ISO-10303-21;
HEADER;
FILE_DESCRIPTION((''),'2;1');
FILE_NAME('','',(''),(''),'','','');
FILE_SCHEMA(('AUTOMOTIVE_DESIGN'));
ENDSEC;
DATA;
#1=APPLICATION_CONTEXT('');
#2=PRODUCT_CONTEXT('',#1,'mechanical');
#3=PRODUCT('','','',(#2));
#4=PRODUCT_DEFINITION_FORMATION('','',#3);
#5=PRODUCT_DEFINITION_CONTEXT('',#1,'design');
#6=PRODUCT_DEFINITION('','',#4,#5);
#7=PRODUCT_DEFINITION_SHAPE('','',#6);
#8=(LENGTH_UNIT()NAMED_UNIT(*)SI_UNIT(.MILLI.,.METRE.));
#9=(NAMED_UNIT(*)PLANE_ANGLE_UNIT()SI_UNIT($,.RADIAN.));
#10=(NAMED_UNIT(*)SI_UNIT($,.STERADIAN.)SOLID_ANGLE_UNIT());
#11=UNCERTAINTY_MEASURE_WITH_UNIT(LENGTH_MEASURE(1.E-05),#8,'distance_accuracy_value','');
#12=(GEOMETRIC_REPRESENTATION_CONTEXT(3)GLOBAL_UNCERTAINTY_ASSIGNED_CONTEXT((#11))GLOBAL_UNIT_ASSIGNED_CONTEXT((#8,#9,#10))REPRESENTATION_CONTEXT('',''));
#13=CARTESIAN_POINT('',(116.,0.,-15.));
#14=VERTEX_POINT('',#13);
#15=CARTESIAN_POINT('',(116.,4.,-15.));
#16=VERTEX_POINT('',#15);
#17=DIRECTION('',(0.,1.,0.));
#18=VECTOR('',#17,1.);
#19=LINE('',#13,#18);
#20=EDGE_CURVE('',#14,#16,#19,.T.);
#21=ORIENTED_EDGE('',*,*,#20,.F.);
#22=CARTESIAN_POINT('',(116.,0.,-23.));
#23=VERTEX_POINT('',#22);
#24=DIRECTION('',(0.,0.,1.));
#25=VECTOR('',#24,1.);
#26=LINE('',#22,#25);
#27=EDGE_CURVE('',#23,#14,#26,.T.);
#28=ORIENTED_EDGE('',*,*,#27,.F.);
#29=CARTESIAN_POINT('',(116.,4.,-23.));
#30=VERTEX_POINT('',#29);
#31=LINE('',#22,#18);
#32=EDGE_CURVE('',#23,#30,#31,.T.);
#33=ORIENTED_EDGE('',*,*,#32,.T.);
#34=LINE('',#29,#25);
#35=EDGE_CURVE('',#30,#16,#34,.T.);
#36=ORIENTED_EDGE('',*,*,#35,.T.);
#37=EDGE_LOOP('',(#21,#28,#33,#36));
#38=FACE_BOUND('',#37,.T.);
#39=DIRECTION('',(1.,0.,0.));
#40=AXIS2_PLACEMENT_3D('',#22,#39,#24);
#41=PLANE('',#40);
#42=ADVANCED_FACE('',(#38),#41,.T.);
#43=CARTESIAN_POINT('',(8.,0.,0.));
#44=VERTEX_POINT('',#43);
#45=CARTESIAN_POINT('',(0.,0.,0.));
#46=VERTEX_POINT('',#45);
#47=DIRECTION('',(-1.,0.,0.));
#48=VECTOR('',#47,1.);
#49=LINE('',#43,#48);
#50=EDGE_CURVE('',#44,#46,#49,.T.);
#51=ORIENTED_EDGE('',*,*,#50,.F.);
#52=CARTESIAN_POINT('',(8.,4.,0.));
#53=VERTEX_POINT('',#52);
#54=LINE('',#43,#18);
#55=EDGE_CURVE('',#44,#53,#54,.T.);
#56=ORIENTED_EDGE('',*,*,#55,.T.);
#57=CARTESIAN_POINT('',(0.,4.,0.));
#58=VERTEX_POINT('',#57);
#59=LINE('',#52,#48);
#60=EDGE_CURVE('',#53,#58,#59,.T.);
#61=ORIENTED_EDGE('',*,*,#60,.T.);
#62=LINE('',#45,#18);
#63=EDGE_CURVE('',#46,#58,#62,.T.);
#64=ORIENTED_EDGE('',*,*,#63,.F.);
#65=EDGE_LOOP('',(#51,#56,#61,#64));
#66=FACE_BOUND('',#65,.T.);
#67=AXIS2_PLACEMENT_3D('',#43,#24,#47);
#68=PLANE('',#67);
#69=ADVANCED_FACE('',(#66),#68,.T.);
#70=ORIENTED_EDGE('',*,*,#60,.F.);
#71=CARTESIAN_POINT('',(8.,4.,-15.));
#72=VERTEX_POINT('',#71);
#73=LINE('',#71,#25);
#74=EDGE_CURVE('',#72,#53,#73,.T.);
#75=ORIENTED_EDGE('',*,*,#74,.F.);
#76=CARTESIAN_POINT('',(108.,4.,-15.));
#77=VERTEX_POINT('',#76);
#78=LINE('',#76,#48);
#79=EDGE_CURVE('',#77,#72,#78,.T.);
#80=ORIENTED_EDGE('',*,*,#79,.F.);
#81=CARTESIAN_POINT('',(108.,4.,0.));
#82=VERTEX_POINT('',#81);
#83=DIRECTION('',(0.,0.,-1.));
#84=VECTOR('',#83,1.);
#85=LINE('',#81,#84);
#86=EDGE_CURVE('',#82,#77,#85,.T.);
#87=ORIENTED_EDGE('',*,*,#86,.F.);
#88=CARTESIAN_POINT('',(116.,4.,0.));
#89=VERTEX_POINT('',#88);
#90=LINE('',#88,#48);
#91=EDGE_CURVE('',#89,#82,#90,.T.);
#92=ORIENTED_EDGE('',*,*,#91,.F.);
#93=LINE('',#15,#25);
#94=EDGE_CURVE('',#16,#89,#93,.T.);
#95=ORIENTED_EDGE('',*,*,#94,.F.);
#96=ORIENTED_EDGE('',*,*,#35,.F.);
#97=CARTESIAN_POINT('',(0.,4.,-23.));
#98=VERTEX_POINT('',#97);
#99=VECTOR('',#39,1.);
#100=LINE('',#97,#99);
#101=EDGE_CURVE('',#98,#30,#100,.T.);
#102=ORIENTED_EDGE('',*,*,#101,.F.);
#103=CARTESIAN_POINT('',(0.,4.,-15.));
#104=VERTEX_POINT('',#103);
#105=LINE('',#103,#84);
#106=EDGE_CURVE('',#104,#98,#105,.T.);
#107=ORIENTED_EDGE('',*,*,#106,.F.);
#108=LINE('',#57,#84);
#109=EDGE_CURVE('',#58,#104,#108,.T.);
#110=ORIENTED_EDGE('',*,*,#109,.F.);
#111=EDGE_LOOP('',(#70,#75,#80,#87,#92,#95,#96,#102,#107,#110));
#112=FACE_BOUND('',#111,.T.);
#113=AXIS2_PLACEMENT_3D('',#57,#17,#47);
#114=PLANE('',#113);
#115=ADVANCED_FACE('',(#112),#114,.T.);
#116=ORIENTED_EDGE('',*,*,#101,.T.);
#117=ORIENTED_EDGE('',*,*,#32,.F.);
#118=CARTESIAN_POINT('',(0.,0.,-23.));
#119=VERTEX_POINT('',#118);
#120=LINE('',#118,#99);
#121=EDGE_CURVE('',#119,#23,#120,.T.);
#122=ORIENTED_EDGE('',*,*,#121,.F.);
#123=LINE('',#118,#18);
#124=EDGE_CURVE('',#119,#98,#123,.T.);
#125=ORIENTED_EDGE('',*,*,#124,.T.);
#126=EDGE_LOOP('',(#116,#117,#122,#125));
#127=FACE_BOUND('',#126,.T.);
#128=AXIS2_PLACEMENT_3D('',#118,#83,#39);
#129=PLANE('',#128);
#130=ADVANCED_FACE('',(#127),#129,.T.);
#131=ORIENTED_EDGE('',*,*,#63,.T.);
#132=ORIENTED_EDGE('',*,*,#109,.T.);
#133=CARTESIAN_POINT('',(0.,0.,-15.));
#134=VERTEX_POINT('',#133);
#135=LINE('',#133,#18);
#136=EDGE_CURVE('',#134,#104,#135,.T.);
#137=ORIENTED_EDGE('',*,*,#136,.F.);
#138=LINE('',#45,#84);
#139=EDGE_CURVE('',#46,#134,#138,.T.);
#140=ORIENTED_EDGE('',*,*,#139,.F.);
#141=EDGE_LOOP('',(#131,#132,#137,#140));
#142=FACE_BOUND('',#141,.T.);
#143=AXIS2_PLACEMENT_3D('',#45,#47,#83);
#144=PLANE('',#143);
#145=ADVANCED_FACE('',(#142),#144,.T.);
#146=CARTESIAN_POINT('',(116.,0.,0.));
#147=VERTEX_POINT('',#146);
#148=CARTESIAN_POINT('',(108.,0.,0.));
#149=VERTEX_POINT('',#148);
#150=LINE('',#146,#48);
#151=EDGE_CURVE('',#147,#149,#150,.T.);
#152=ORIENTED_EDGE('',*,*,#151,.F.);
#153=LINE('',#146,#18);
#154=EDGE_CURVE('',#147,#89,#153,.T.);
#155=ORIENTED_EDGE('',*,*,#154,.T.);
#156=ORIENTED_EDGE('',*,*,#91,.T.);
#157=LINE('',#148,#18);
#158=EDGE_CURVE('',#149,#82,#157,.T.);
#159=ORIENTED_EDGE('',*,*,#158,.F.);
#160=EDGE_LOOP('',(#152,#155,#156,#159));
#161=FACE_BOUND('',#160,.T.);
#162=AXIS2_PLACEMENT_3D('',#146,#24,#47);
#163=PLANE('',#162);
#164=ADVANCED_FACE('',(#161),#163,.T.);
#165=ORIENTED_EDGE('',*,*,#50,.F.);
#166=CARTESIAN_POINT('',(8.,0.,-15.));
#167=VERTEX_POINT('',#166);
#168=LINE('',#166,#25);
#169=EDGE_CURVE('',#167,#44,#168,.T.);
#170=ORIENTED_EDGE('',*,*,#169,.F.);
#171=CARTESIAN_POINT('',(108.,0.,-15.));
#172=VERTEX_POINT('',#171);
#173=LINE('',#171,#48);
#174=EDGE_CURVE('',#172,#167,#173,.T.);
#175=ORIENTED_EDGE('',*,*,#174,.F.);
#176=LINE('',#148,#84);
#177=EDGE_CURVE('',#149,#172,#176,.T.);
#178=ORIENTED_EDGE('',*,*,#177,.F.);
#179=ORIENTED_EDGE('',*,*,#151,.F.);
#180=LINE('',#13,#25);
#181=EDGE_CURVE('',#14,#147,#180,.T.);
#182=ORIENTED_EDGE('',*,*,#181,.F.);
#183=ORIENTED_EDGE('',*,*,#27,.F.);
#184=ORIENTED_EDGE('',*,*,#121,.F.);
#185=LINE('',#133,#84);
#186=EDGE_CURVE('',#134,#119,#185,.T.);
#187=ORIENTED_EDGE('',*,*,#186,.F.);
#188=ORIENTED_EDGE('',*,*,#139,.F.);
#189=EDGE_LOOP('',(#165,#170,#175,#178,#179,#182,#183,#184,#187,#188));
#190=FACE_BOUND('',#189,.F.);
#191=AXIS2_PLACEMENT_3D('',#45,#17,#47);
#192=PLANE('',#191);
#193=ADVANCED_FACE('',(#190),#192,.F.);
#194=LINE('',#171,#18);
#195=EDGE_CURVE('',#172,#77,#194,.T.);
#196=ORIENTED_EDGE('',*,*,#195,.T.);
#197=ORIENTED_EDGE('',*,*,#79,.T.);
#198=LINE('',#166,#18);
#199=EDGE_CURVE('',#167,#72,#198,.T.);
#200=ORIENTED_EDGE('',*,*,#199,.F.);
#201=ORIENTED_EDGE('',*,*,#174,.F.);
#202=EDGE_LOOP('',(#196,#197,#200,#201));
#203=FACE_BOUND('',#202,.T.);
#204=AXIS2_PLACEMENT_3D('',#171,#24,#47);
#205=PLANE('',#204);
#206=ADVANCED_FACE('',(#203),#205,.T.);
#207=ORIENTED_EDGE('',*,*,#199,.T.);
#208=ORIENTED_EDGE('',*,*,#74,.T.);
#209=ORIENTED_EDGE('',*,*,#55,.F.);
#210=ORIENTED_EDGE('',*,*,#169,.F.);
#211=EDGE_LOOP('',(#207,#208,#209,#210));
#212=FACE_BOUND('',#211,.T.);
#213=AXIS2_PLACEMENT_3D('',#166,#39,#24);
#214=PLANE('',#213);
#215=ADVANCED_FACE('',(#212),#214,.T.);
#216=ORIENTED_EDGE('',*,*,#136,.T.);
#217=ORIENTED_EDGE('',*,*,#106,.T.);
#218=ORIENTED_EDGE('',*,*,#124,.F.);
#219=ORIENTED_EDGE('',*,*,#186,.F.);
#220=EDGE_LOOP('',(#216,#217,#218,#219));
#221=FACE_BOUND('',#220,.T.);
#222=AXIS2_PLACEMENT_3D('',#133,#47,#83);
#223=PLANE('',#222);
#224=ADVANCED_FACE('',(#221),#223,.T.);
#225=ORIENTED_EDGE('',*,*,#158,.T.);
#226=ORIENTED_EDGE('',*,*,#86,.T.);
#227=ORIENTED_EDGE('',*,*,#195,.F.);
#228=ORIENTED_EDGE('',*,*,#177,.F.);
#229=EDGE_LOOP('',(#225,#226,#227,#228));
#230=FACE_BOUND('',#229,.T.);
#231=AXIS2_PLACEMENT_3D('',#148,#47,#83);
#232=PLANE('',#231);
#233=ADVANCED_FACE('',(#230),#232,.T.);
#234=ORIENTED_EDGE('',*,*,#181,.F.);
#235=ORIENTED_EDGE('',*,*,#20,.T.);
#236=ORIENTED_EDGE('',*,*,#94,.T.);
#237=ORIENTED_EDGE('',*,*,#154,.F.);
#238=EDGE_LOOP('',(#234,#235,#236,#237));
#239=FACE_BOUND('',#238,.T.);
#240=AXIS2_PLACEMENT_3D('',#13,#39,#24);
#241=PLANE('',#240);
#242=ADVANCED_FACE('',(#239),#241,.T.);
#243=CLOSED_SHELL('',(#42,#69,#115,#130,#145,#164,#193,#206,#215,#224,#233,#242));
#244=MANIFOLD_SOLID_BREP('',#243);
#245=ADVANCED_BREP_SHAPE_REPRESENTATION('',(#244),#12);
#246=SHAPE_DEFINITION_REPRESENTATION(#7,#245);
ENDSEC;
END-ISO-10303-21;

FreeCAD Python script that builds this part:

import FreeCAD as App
import Part
import Sketcher
from FreeCAD import Vector

doc = App.newDocument("Part")
body = doc.addObject("PartDesign::Body", "Body")

sketch1 = doc.addObject("Sketcher::SketchObject", "Sketch")
body.addObject(sketch1)
sketch1.AttachmentSupport = (doc.XZ_Plane, [""])
sketch1.MapMode = "FlatFace"
sketch1.addGeometry(Part.LineSegment(Vector(0, -23, 0), Vector(0, 0, 0)), False)
sketch1.addGeometry(Part.LineSegment(Vector(0, 0, 0), Vector(8, 0, 0)), False)
sketch1.addGeometry(Part.LineSegment(Vector(8, 0, 0), Vector(8, -15, 0)), False)
sketch1.addGeometry(Part.LineSegment(Vector(8, -15, 0), Vector(108, -15, 0)), False)
sketch1.addGeometry(Part.LineSegment(Vector(108, -15, 0), Vector(108, 0, 0)), False)
sketch1.addGeometry(Part.LineSegment(Vector(108, 0, 0), Vector(116, 0, 0)), False)
sketch1.addGeometry(Part.LineSegment(Vector(116, 0, 0), Vector(116, -23, 0)), False)
sketch1.addGeometry(Part.LineSegment(Vector(116, -23, 0), Vector(0, -23, 0)), False)
sketch1.addConstraint(Sketcher.Constraint("Coincident", 0, 2, 1, 1))
sketch1.addConstraint(Sketcher.Constraint("Coincident", 1, 2, 2, 1))
sketch1.addConstraint(Sketcher.Constraint("Coincident", 2, 2, 3, 1))
sketch1.addConstraint(Sketcher.Constraint("Coincident", 3, 2, 4, 1))
sketch1.addConstraint(Sketcher.Constraint("Coincident", 4, 2, 5, 1))
sketch1.addConstraint(Sketcher.Constraint("Coincident", 5, 2, 6, 1))
sketch1.addConstraint(Sketcher.Constraint("Coincident", 6, 2, 7, 1))
sketch1.addConstraint(Sketcher.Constraint("Coincident", 7, 2, 0, 1))
sketch1.addConstraint(Sketcher.Constraint("Vertical", 0))
sketch1.addConstraint(Sketcher.Constraint("Horizontal", 1))
sketch1.addConstraint(Sketcher.Constraint("Vertical", 2))
sketch1.addConstraint(Sketcher.Constraint("Horizontal", 3))
sketch1.addConstraint(Sketcher.Constraint("Vertical", 4))
sketch1.addConstraint(Sketcher.Constraint("Horizontal", 5))
sketch1.addConstraint(Sketcher.Constraint("Vertical", 6))
sketch1.addConstraint(Sketcher.Constraint("Horizontal", 7))
sketch1.addConstraint(Sketcher.Constraint("Coincident", 0, 2, -1, 1))
sketch1.addConstraint(Sketcher.Constraint("PointOnObject", 4, 2, -1))
sketch1.addConstraint(Sketcher.Constraint("Equal", 1, 5))
sketch1.addConstraint(Sketcher.Constraint("DistanceX", 1, 1, 1, 2, 8.0))
sketch1.addConstraint(Sketcher.Constraint("DistanceX", 3, 1, 3, 2, 100.0))
sketch1.addConstraint(Sketcher.Constraint("DistanceY", 2, 2, 2, 1, 15.0))
sketch1.addConstraint(Sketcher.Constraint("DistanceY", 6, 2, 3, 2, 8.0))
pad1 = doc.addObject("PartDesign::Pad", "Pad")
body.addObject(pad1)
pad1.Profile = sketch1
pad1.Length = 4
pad1.Reversed = True

doc.recompute()
